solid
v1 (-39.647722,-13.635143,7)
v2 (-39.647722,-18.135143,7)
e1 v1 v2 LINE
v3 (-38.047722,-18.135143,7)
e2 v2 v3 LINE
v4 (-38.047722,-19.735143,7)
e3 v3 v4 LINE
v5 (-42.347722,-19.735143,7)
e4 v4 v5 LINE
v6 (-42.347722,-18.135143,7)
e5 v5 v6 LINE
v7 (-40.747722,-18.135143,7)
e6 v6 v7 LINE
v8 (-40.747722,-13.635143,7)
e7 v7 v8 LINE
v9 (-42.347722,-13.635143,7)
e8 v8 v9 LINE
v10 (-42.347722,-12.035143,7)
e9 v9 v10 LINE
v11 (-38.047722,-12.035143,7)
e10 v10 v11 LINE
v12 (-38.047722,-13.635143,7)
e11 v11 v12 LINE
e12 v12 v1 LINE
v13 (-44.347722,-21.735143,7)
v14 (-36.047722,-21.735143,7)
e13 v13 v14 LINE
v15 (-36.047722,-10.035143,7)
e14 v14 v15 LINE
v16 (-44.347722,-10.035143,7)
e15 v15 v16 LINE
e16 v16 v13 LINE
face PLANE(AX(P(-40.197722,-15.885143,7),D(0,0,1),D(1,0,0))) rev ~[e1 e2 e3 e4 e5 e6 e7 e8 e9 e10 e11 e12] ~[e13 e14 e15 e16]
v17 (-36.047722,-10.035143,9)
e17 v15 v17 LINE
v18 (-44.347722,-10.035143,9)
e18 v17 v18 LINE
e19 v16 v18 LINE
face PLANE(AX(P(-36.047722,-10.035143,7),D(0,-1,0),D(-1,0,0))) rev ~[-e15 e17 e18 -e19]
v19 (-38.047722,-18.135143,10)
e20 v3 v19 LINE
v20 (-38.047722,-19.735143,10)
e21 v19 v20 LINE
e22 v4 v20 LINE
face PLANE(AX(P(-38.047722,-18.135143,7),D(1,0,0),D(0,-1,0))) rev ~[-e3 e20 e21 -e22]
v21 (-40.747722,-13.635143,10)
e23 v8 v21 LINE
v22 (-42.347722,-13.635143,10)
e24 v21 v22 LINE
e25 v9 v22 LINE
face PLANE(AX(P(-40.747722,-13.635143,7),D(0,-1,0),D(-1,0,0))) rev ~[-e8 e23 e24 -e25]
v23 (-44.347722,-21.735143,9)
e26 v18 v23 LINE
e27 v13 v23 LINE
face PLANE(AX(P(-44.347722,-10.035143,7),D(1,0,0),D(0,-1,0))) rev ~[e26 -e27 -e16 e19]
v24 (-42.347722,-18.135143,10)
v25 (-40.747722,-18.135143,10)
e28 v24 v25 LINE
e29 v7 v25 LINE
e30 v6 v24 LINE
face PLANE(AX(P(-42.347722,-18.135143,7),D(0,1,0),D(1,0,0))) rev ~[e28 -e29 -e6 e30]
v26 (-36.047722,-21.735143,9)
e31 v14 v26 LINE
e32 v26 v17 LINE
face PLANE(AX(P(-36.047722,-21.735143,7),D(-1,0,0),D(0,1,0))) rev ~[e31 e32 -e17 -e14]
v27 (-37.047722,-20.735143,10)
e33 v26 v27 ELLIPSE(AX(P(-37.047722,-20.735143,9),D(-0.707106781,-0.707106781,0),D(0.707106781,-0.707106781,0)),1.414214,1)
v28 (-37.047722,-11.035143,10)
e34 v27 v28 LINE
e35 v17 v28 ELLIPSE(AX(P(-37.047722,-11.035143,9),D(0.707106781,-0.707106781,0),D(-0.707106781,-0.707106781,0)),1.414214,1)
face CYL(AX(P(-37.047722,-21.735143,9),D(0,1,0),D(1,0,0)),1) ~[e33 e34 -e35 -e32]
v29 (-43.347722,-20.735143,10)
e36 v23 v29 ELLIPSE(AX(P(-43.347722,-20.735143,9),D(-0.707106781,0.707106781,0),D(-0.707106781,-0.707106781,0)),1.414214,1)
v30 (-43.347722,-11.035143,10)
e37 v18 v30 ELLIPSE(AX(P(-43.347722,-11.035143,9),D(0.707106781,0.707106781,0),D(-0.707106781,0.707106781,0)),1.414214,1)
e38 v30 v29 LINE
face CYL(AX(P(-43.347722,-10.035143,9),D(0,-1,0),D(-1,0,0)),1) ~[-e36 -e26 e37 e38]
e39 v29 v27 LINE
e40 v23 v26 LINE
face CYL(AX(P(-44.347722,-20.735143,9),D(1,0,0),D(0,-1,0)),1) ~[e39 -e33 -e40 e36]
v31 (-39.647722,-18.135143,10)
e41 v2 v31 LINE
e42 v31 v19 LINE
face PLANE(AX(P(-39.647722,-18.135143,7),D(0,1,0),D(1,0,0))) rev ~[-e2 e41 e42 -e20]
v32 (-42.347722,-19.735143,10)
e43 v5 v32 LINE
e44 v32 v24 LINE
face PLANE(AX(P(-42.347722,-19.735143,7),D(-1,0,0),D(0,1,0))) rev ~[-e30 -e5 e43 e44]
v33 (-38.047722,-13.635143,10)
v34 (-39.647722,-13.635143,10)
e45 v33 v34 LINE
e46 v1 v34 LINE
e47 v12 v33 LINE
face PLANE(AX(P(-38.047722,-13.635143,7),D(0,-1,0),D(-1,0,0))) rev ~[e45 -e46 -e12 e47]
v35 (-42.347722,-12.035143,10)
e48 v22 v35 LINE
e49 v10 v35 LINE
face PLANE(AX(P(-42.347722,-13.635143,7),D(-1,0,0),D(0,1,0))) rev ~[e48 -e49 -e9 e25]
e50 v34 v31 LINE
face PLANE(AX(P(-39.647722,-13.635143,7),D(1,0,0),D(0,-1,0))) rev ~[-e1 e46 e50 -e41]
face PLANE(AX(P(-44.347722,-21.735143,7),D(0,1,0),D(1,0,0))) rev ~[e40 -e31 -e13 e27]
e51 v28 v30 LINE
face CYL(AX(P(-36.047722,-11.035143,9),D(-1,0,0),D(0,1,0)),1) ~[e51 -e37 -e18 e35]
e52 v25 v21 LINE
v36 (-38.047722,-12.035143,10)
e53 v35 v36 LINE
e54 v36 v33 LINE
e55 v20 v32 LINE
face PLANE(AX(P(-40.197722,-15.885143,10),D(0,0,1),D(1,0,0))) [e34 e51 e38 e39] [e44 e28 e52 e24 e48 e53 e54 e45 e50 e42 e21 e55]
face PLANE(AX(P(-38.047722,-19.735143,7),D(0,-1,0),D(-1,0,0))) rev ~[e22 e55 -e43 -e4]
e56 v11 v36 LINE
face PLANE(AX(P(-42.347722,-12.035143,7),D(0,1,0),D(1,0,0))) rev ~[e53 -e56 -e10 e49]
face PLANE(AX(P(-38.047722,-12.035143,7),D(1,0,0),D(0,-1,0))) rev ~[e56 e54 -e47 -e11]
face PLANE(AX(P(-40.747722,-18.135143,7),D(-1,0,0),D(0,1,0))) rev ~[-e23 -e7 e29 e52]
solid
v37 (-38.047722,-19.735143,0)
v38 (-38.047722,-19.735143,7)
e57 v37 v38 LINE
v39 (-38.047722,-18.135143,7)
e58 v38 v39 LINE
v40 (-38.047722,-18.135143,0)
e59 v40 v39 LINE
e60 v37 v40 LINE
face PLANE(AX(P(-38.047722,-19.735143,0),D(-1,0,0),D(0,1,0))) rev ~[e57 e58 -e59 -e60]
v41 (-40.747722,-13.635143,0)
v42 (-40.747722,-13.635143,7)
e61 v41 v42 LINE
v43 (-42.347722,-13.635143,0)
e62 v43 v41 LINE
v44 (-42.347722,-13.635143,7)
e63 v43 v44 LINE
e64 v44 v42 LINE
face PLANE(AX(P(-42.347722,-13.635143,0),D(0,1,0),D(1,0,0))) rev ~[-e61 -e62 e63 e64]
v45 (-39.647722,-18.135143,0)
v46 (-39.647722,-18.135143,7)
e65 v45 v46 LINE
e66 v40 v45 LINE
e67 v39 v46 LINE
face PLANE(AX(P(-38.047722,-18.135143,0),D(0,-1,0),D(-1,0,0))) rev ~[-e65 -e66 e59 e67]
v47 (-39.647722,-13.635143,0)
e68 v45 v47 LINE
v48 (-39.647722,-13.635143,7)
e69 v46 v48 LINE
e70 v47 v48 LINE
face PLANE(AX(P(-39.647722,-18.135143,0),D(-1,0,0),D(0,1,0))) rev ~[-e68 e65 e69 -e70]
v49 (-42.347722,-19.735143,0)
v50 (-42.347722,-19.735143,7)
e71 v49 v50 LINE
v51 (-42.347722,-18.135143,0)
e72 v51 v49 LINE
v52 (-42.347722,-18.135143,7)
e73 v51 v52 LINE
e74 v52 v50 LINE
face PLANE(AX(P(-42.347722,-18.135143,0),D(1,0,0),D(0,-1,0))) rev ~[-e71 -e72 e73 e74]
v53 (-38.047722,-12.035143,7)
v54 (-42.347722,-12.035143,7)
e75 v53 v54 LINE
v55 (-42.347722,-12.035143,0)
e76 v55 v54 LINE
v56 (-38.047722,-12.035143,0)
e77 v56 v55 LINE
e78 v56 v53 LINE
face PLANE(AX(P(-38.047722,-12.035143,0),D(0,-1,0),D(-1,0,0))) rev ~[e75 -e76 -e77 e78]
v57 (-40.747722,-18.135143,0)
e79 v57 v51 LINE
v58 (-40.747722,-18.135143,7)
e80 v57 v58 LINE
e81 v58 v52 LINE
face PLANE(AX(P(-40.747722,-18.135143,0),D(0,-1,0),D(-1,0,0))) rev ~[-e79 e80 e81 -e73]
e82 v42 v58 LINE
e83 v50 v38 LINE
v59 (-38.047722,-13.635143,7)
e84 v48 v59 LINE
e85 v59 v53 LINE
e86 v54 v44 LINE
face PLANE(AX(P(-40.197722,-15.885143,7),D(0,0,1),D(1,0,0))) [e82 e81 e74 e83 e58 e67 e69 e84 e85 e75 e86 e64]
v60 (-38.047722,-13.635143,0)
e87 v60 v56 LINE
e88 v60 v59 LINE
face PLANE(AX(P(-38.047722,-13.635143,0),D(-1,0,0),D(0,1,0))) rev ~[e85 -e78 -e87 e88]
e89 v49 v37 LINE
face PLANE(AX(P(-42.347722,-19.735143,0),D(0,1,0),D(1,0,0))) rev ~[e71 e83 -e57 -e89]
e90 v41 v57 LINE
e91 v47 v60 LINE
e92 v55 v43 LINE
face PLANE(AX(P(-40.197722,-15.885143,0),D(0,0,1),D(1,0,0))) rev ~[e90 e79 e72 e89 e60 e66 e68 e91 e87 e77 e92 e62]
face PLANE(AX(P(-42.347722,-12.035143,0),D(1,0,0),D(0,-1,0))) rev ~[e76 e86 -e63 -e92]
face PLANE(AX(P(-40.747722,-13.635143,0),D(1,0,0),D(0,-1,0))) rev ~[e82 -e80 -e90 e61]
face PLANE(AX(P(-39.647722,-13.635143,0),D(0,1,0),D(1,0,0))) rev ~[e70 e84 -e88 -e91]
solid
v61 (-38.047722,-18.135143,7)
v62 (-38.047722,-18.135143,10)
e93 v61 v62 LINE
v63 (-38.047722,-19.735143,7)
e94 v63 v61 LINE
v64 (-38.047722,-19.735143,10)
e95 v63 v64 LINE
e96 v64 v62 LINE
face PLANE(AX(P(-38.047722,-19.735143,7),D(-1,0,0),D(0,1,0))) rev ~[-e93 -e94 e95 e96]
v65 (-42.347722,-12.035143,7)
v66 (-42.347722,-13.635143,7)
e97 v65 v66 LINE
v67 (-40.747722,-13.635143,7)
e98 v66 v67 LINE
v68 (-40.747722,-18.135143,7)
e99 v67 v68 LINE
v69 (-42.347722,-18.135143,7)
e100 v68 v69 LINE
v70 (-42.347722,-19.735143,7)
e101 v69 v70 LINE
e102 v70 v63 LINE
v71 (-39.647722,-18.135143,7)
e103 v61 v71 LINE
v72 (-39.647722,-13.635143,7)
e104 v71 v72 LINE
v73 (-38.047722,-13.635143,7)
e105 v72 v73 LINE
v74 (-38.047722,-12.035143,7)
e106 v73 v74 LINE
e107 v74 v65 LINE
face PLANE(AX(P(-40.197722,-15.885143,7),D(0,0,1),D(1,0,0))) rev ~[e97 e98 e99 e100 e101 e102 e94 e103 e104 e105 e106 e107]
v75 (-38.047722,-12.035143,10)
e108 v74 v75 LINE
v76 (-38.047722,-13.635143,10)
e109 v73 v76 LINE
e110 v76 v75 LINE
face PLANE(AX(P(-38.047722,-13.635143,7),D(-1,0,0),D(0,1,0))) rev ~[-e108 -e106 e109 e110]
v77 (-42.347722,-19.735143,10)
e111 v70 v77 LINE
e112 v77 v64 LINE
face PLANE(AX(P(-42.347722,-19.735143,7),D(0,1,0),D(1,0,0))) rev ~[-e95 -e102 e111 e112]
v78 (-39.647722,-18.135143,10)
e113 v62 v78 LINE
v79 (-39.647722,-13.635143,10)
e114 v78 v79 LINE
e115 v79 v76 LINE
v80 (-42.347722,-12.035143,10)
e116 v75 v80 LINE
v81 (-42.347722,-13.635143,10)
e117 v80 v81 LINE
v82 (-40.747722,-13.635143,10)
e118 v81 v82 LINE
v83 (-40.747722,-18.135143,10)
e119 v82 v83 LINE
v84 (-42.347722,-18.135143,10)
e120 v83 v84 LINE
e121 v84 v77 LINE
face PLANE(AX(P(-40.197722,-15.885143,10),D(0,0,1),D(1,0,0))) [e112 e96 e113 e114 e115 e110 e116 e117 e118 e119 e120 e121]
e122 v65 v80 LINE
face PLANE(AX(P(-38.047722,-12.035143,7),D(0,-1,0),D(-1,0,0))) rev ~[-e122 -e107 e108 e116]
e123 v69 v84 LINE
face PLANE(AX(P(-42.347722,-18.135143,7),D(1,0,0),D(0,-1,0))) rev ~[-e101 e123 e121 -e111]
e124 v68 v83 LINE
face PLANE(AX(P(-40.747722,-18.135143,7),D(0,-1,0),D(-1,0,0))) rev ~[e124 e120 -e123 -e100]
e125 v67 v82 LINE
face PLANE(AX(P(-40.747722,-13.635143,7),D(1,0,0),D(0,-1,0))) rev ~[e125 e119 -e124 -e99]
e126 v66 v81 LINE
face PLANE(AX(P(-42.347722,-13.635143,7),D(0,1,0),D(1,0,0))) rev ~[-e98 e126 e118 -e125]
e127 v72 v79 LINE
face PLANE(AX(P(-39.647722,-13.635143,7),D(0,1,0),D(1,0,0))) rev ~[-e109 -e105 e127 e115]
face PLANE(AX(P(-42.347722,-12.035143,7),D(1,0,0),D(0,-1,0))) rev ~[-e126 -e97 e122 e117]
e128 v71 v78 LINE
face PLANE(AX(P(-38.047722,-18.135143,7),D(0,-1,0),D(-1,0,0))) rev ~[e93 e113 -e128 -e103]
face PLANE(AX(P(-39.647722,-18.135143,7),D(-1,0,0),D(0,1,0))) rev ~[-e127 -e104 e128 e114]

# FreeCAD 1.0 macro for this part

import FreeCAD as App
import Part
import Sketcher
from FreeCAD import Vector


def edges_at(feature, points):
    """Names of the edges that pass closest to the given points."""
    edges = feature.Shape.Edges
    near = lambda p: min(range(len(edges)), key=lambda i: edges[i].distToShape(Part.Vertex(*p))[0])
    return sorted({f"Edge{near(p) + 1}" for p in points})


def add_polygon(sketch, points):
    """Adds a closed chain of lines whose ends are joined by coincident constraints."""
    first, n = sketch.GeometryCount, len(points)
    for a, b in zip(points, points[1:] + points[:1]):
        sketch.addGeometry(Part.LineSegment(App.Vector(*a, 0), App.Vector(*b, 0)), False)
    for i in range(n):
        sketch.addConstraint(Sketcher.Constraint("Coincident", first + i, 2, first + (i + 1) % n, 1))

doc = App.newDocument("Part")
body = doc.addObject("PartDesign::Body", "Body")

sketch1 = body.newObject("Sketcher::SketchObject", "Sketch")
sketch1.AttachmentSupport = (doc.getObject("XY_Plane"), [""])
sketch1.MapMode = "FlatFace"
add_polygon(sketch1, [(-42.3, -13.6), (-40.7, -13.6), (-40.7, -18.1), (-42.3, -18.1), (-42.3, -19.7), (-38, -19.7), (-38, -18.1), (-39.6, -18.1), (-39.6, -13.6), (-38, -13.6), (-38, -12), (-42.3, -12)])
sketch1.addConstraint([
    Sketcher.Constraint("Horizontal", 0),
    Sketcher.Constraint("Vertical", 1),
    Sketcher.Constraint("Horizontal", 2),
    Sketcher.Constraint("Vertical", 3),
    Sketcher.Constraint("Horizontal", 4),
    Sketcher.Constraint("Vertical", 5),
    Sketcher.Constraint("Horizontal", 6),
    Sketcher.Constraint("Vertical", 7),
    Sketcher.Constraint("Horizontal", 8),
    Sketcher.Constraint("Vertical", 9),
    Sketcher.Constraint("Horizontal", 10),
    Sketcher.Constraint("Vertical", 11),
    Sketcher.Constraint("Horizontal", 2, 2, 5, 2),
    Sketcher.Constraint("Horizontal", 0, 2, 7, 2),
    Sketcher.Constraint("Vertical", 5, 2, 8, 2),
    Sketcher.Constraint("Vertical", 3, 2, 10, 2),
    Sketcher.Constraint("Equal", 2, 6),
    Sketcher.Constraint("Equal", 8, 3),
    Sketcher.Constraint("Equal", 5, 9),
    Sketcher.Constraint("DistanceX", 0, 1, 0, 2, 1.6),
    Sketcher.Constraint("DistanceX", 4, 1, 4, 2, 4.3),
    Sketcher.Constraint("DistanceY", 1, 2, 1, 1, 4.5),
    Sketcher.Constraint("DistanceX", 2, 2, -1, 1, 42.347722),
    Sketcher.Constraint("DistanceY", 0, 2, -1, 1, 13.635143),
])
pad1 = body.newObject("PartDesign::Pad", "Pad")
pad1.Profile = sketch1
pad1.Length = 7
body2 = doc.addObject("PartDesign::Body", "Body001")

sketch2 = body2.newObject("Sketcher::SketchObject", "Sketch001")
sketch2.AttachmentSupport = (doc.getObject("XY_Plane001"), [""])
sketch2.MapMode = "FlatFace"
sketch2.AttachmentOffset = App.Placement(Vector(0, 0, 7), App.Rotation())
add_polygon(sketch2, [(-44.3, -10), (-44.3, -21.7), (-36, -21.7), (-36, -10)])
add_polygon(sketch2, [(-40.7, -18.1), (-40.7, -13.6), (-42.3, -13.6), (-42.3, -12), (-38, -12), (-38, -13.6), (-39.6, -13.6), (-39.6, -18.1), (-38, -18.1), (-38, -19.7), (-42.3, -19.7), (-42.3, -18.1)])
sketch2.addConstraint([
    Sketcher.Constraint("Vertical", 0),
    Sketcher.Constraint("Horizontal", 1),
    Sketcher.Constraint("Vertical", 2),
    Sketcher.Constraint("Horizontal", 3),
    Sketcher.Constraint("Vertical", 4),
    Sketcher.Constraint("Horizontal", 5),
    Sketcher.Constraint("Vertical", 6),
    Sketcher.Constraint("Horizontal", 7),
    Sketcher.Constraint("Vertical", 8),
    Sketcher.Constraint("Horizontal", 9),
    Sketcher.Constraint("Vertical", 10),
    Sketcher.Constraint("Horizontal", 11),
    Sketcher.Constraint("Vertical", 12),
    Sketcher.Constraint("Horizontal", 13),
    Sketcher.Constraint("Vertical", 14),
    Sketcher.Constraint("Horizontal", 15),
    Sketcher.Constraint("Horizontal", 5, 2, 8, 2),
    Sketcher.Constraint("Horizontal", 11, 2, 14, 2),
    Sketcher.Constraint("Vertical", 8, 2, 11, 2),
    Sketcher.Constraint("Vertical", 6, 2, 13, 2),
    Sketcher.Constraint("Equal", 5, 9),
    Sketcher.Constraint("Equal", 15, 6),
    Sketcher.Constraint("Equal", 8, 12),
    Sketcher.Constraint("DistanceX", 1, 1, 1, 2, 8.3),
    Sketcher.Constraint("DistanceX", 5, 2, 5, 1, 1.6),
    Sketcher.Constraint("DistanceX", 7, 1, 7, 2, 4.3),
    Sketcher.Constraint("DistanceY", 0, 2, 0, 1, 11.7),
    Sketcher.Constraint("DistanceY", 4, 1, 4, 2, 4.5),
    Sketcher.Constraint("DistanceX", 3, 2, 5, 2, 2.0),
    Sketcher.Constraint("DistanceY", 6, 2, 3, 2, 2.0),
    Sketcher.Constraint("DistanceX", 0, 2, -1, 1, 44.347722),
    Sketcher.Constraint("DistanceY", 0, 2, -1, 1, 21.735143),
])
pad2 = body2.newObject("PartDesign::Pad", "Pad001")
pad2.Profile = sketch2
pad2.Length = 3
doc.recompute()

fillet = body2.newObject("PartDesign::Fillet", "Fillet")
fillet.Base = (pad2, edges_at(pad2, [
    (-40.198, -10.035, 10),
    (-44.348, -15.885, 10),
    (-40.198, -21.735, 10),
    (-36.048, -15.885, 10),
]))
fillet.Radius = 1
body3 = doc.addObject("PartDesign::Body", "Body002")

sketch3 = body3.newObject("Sketcher::SketchObject", "Sketch002")
sketch3.AttachmentSupport = (doc.getObject("XY_Plane002"), [""])
sketch3.MapMode = "FlatFace"
sketch3.AttachmentOffset = App.Placement(Vector(0, 0, 7), App.Rotation())
add_polygon(sketch3, [(-42.3, -13.6), (-40.7, -13.6), (-40.7, -18.1), (-42.3, -18.1), (-42.3, -19.7), (-38, -19.7), (-38, -18.1), (-39.6, -18.1), (-39.6, -13.6), (-38, -13.6), (-38, -12), (-42.3, -12)])
sketch3.addConstraint([
    Sketcher.Constraint("Horizontal", 0),
    Sketcher.Constraint("Vertical", 1),
    Sketcher.Constraint("Horizontal", 2),
    Sketcher.Constraint("Vertical", 3),
    Sketcher.Constraint("Horizontal", 4),
    Sketcher.Constraint("Vertical", 5),
    Sketcher.Constraint("Horizontal", 6),
    Sketcher.Constraint("Vertical", 7),
    Sketcher.Constraint("Horizontal", 8),
    Sketcher.Constraint("Vertical", 9),
    Sketcher.Constraint("Horizontal", 10),
    Sketcher.Constraint("Vertical", 11),
    Sketcher.Constraint("Horizontal", 2, 2, 5, 2),
    Sketcher.Constraint("Horizontal", 0, 2, 7, 2),
    Sketcher.Constraint("Vertical", 5, 2, 8, 2),
    Sketcher.Constraint("Vertical", 3, 2, 10, 2),
    Sketcher.Constraint("Equal", 2, 6),
    Sketcher.Constraint("Equal", 8, 3),
    Sketcher.Constraint("Equal", 5, 9),
    Sketcher.Constraint("DistanceX", 0, 1, 0, 2, 1.6),
    Sketcher.Constraint("DistanceX", 4, 1, 4, 2, 4.3),
    Sketcher.Constraint("DistanceY", 1, 2, 1, 1, 4.5),
    Sketcher.Constraint("DistanceX", 2, 2, -1, 1, 42.347722),
    Sketcher.Constraint("DistanceY", 0, 2, -1, 1, 13.635143),
])
pad3 = body3.newObject("PartDesign::Pad", "Pad002")
pad3.Profile = sketch3
pad3.Length = 3

doc.recompute()
